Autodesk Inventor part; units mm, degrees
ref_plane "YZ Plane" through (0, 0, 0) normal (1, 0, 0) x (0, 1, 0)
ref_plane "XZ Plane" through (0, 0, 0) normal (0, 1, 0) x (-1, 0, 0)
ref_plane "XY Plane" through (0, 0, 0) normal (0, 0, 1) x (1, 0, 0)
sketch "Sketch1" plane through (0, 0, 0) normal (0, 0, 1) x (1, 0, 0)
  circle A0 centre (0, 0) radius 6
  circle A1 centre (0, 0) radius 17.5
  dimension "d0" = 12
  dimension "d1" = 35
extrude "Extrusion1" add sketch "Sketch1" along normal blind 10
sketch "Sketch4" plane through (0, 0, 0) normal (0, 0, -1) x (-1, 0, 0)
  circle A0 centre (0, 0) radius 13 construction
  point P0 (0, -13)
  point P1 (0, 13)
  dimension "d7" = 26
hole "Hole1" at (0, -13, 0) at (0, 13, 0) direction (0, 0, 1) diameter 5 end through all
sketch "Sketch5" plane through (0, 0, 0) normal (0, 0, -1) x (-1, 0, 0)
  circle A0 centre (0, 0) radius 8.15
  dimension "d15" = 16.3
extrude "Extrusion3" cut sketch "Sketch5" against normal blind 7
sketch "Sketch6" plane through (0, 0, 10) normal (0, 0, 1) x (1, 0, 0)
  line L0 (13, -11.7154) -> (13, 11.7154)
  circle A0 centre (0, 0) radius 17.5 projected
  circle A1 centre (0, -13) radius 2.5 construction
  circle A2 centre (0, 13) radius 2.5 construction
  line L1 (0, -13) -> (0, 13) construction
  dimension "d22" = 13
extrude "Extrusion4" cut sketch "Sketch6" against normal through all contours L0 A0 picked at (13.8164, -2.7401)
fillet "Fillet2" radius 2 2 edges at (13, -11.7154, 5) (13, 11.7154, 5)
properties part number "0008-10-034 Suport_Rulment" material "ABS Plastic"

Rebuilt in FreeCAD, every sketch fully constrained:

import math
import FreeCAD as App
import Part
import Sketcher

V = App.Vector


def edges_at(feature, points):
    """Names of the edges that pass closest to the given points."""
    edges = feature.Shape.Edges
    near = lambda p: min(range(len(edges)), key=lambda i: edges[i].distToShape(Part.Vertex(*p))[0])
    return sorted({f"Edge{near(p) + 1}" for p in points})

doc = App.newDocument("Part")
params = doc.addObject("Spreadsheet::Sheet", "Params")
for row, (alias, value) in enumerate([
    ("sketch1_diameter", "35 mm"),
    ("sketch1_diameter2", "12 mm"),
    ("pad1_length", "10 mm"),
    ("sketch2_diameter", "5 mm"),
    ("hole_diameter", "5 mm"),
    ("sketch3_diameter", "16.3 mm"),
    ("pocket1_length", "7 mm"),
    ("sketch4_radius", "17.5 mm"),
    ("fillet_radius", "2 mm"),
], start=1):
    params.set(f"A{row}", alias)
    params.set(f"B{row}", "=" + value)
    params.setAlias(f"B{row}", alias)

body = doc.addObject("PartDesign::Body", "Body")

sketch1 = body.newObject("Sketcher::SketchObject", "Sketch")
sketch1.AttachmentSupport = (doc.getObject("XY_Plane"), [""])
sketch1.MapMode = "FlatFace"
sketch1.addGeometry(Part.Circle(V(0, 0, 0), V(0, 0, 1), 17.5), False)
sketch1.addGeometry(Part.Circle(V(0, 0, 0), V(0, 0, 1), 6), False)
sketch1.addConstraint(Sketcher.Constraint("Coincident", 0, 3, -1, 1))
sketch1.addConstraint(Sketcher.Constraint("Coincident", 1, 3, -1, 1))
sketch1.addConstraint(Sketcher.Constraint("Diameter", 0, 35.0))
sketch1.addConstraint(Sketcher.Constraint("Diameter", 1, 12.0))
sketch1.setExpression("Constraints[2]", "Params.sketch1_diameter")
sketch1.setExpression("Constraints[3]", "Params.sketch1_diameter2")
pad1 = body.newObject("PartDesign::Pad", "Pad")
pad1.Profile = sketch1
pad1.setExpression("Length", "Params.pad1_length")

sketch2 = body.newObject("Sketcher::SketchObject", "Sketch001")
sketch2.AttachmentSupport = (doc.getObject("XY_Plane"), [""])
sketch2.MapMode = "FlatFace"
sketch2.addGeometry(Part.Circle(V(0, -13, 0), V(0, 0, 1), 2.5), False)
sketch2.addGeometry(Part.Circle(V(0, 13, 0), V(0, 0, 1), 2.5), False)
sketch2.addConstraint(Sketcher.Constraint("Equal", 0, 1))
sketch2.addConstraint(Sketcher.Constraint("Symmetric", 0, 3, 1, 3, -1, 1))
sketch2.addConstraint(Sketcher.Constraint("PointOnObject", 0, 3, -2))
sketch2.addConstraint(Sketcher.Constraint("Diameter", 0, 5.0))
sketch2.addConstraint(Sketcher.Constraint("DistanceY", 0, 3, -1, 1, 13.0))
sketch2.setExpression("Constraints[3]", "Params.sketch2_diameter")
doc.recompute()
hole = body.newObject("PartDesign::Hole", "Hole")
hole.Profile = sketch2
hole.ThreadType = "None"
hole.setExpression("Diameter", "Params.hole_diameter")
hole.DepthType = "ThroughAll"
hole.Reversed = True

sketch3 = body.newObject("Sketcher::SketchObject", "Sketch002")
sketch3.AttachmentSupport = (doc.getObject("XY_Plane"), [""])
sketch3.MapMode = "FlatFace"
sketch3.addGeometry(Part.Circle(V(0, 0, 0), V(0, 0, 1), 8.15), False)
sketch3.addConstraint(Sketcher.Constraint("Coincident", 0, 3, -1, 1))
sketch3.addConstraint(Sketcher.Constraint("Diameter", 0, 16.3))
sketch3.setExpression("Constraints[1]", "Params.sketch3_diameter")
pocket1 = body.newObject("PartDesign::Pocket", "Pocket")
pocket1.Profile = sketch3
pocket1.setExpression("Length", "Params.pocket1_length")
pocket1.Reversed = True

sketch4 = body.newObject("Sketcher::SketchObject", "Sketch003")
sketch4.AttachmentSupport = (doc.getObject("XY_Plane"), [""])
sketch4.MapMode = "FlatFace"
sketch4.AttachmentOffset = App.Placement(V(0, 0, 10), App.Rotation())
sketch4.addGeometry(Part.LineSegment(V(13, 11.7154, 0), V(13, -11.7154, 0)), False)
sketch4.addGeometry(Part.ArcOfCircle(Part.Circle(V(0, 0, 0), V(0, 0, 1), 17.5), math.radians(-42.02469), math.radians(42.02469)), False)
sketch4.addConstraint(Sketcher.Constraint("Coincident", 0, 1, 1, 2))
sketch4.addConstraint(Sketcher.Constraint("Coincident", 1, 1, 0, 2))
sketch4.addConstraint(Sketcher.Constraint("Vertical", 0))
sketch4.addConstraint(Sketcher.Constraint("Coincident", 1, 3, -1, 1))
sketch4.addConstraint(Sketcher.Constraint("DistanceX", -1, 1, 0, 1, 13.0))
sketch4.addConstraint(Sketcher.Constraint("Radius", 1, 17.5))
sketch4.setExpression("Constraints[5]", "Params.sketch4_radius")
pocket2 = body.newObject("PartDesign::Pocket", "Pocket001")
pocket2.Profile = sketch4
pocket2.Type = "ThroughAll"
doc.recompute()

fillet = body.newObject("PartDesign::Fillet", "Fillet")
fillet.Base = (pocket2, edges_at(pocket2, [(13, -11.715, 5), (13, 11.715, 5)]))
fillet.setExpression("Radius", "Params.fillet_radius")

doc.recompute()
